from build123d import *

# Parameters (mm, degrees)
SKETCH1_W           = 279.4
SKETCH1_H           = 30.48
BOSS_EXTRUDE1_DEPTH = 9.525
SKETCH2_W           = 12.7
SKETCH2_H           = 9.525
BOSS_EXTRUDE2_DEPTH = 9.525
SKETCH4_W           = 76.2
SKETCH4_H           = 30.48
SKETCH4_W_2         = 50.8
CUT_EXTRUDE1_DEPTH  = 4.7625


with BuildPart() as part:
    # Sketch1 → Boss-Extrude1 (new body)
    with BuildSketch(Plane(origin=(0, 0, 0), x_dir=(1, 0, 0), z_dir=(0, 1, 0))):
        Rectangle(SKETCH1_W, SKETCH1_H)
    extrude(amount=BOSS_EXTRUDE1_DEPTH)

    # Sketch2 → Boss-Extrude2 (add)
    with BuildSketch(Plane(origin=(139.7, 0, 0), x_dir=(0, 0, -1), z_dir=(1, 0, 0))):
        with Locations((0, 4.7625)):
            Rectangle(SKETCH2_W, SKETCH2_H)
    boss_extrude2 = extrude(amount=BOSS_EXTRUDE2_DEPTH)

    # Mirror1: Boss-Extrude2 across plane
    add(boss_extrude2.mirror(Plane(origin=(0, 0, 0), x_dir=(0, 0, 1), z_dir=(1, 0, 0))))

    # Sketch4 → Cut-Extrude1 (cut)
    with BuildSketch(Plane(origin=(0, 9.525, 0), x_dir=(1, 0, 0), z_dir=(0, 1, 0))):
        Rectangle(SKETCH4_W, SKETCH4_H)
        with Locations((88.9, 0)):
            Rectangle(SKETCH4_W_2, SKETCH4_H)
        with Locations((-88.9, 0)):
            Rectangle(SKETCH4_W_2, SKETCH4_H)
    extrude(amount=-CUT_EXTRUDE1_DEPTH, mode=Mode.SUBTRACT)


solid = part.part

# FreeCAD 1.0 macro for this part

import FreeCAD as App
import Part
import Sketcher
from FreeCAD import Vector
Q = App.Units.Quantity

doc = App.newDocument("Part")
params = doc.addObject("Spreadsheet::Sheet", "Params")
for row, (alias, value) in enumerate([
    ("sketch1_width", "11 in"),
    ("sketch1_height", "1.2 in"),
    ("pad1_length", "0.375 in"),
    ("sketch2_height", "0.5 in"),
    ("sketch2_width", "0.375 in"),
    ("pad2_length", "0.375 in"),
    ("sketch3_width", "3 in"),
    ("sketch3_width2", "2 in"),
    ("sketch3_height", "1.2 in"),
    ("pocket1_length", "0.1875 in"),
], start=1):
    params.set(f"A{row}", alias)
    params.set(f"B{row}", "=" + value)
    params.setAlias(f"B{row}", alias)

body = doc.addObject("PartDesign::Body", "Body")

# Sketch on XZ plane
sketch1 = body.newObject("Sketcher::SketchObject", "Sketch")
sketch1.AttachmentSupport = (doc.getObject("XZ_Plane"), [""])
sketch1.MapMode = "FlatFace"
sketch1.addGeometry([
    Part.LineSegment(Vector(-140, -15, 0), Vector(-140, 15, 0)),
    Part.LineSegment(Vector(-140, 15, 0), Vector(140, 15, 0)),
    Part.LineSegment(Vector(140, 15, 0), Vector(140, -15, 0)),
    Part.LineSegment(Vector(140, -15, 0), Vector(-140, -15, 0)),
], False)
sketch1.addConstraint([
    Sketcher.Constraint("Coincident", 0, 2, 1, 1),
    Sketcher.Constraint("Coincident", 1, 2, 2, 1),
    Sketcher.Constraint("Coincident", 2, 2, 3, 1),
    Sketcher.Constraint("Coincident", 3, 2, 0, 1),
    Sketcher.Constraint("Vertical", 0),
    Sketcher.Constraint("Horizontal", 1),
    Sketcher.Constraint("Vertical", 2),
    Sketcher.Constraint("Horizontal", 3),
    Sketcher.Constraint("Symmetric", 0, 2, 2, 2, -1, 1),
    Sketcher.Constraint("DistanceX", 1, 1, 1, 2, Q("11 in")),
    Sketcher.Constraint("DistanceY", 0, 1, 0, 2, Q("1.2 in")),
])
sketch1.setExpression("Constraints[9]", "Params.sketch1_width")
sketch1.setExpression("Constraints[10]", "Params.sketch1_height")
pad1 = body.newObject("PartDesign::Pad", "Pad")
pad1.Profile = sketch1
pad1.setExpression("Length", "Params.pad1_length")
pad1.Reversed = True

# Sketch on YZ plane
sketch2 = body.newObject("Sketcher::SketchObject", "Sketch001")
sketch2.AttachmentSupport = (doc.getObject("YZ_Plane"), [""])
sketch2.MapMode = "FlatFace"
sketch2.AttachmentOffset = App.Placement(Vector(0, 0, 5.5 * 25.4), App.Rotation())
sketch2.addGeometry([
    Part.LineSegment(Vector(10, 6, 0), Vector(0, 6, 0)),
    Part.LineSegment(Vector(0, 6, 0), Vector(0, -6, 0)),
    Part.LineSegment(Vector(0, -6, 0), Vector(10, -6, 0)),
    Part.LineSegment(Vector(10, -6, 0), Vector(10, 6, 0)),
], False)
sketch2.addConstraint([
    Sketcher.Constraint("Coincident", 0, 2, 1, 1),
    Sketcher.Constraint("Coincident", 1, 2, 2, 1),
    Sketcher.Constraint("Coincident", 2, 2, 3, 1),
    Sketcher.Constraint("Coincident", 3, 2, 0, 1),
    Sketcher.Constraint("Horizontal", 0),
    Sketcher.Constraint("Vertical", 1),
    Sketcher.Constraint("Horizontal", 2),
    Sketcher.Constraint("Vertical", 3),
    Sketcher.Constraint("Symmetric", 0, 2, 1, 2, -1, 1),
    Sketcher.Constraint("DistanceY", 1, 2, 1, 1, Q("0.5 in")),
    Sketcher.Constraint("DistanceX", 0, 2, 0, 1, Q("0.375 in")),
])
sketch2.setExpression("Constraints[9]", "Params.sketch2_height")
sketch2.setExpression("Constraints[10]", "Params.sketch2_width")
pad2 = body.newObject("PartDesign::Pad", "Pad001")
pad2.Profile = sketch2
pad2.setExpression("Length", "Params.pad2_length")
doc.recompute()

mirrored = body.newObject("PartDesign::Mirrored", "Mirrored")
mirrored.Originals = [pad2]
mirrored.MirrorPlane = (doc.getObject("YZ_Plane"), [""])
body.Tip = mirrored

# Sketch on XZ plane
sketch3 = body.newObject("Sketcher::SketchObject", "Sketch002")
sketch3.AttachmentSupport = (doc.getObject("XZ_Plane"), [""])
sketch3.MapMode = "FlatFace"
sketch3.AttachmentOffset = App.Placement(Vector(0, 0, -0.375 * 25.4), App.Rotation())
sketch3.addGeometry([
    Part.LineSegment(Vector(-38, -15, 0), Vector(-38, 15, 0)),  # 0
    Part.LineSegment(Vector(-38, 15, 0), Vector(38, 15, 0)),  # 1
    Part.LineSegment(Vector(38, 15, 0), Vector(38, -15, 0)),  # 2
    Part.LineSegment(Vector(38, -15, 0), Vector(-38, -15, 0)),  # 3
    Part.LineSegment(Vector(64, -15, 0), Vector(64, 15, 0)),  # 4
    Part.LineSegment(Vector(64, 15, 0), Vector(114, 15, 0)),  # 5
    Part.LineSegment(Vector(114, 15, 0), Vector(114, -15, 0)),  # 6
    Part.LineSegment(Vector(114, -15, 0), Vector(64, -15, 0)),  # 7
    Part.LineSegment(Vector(-114, -15, 0), Vector(-114, 15, 0)),  # 8
    Part.LineSegment(Vector(-114, 15, 0), Vector(-64, 15, 0)),  # 9
    Part.LineSegment(Vector(-64, 15, 0), Vector(-64, -15, 0)),  # 10
    Part.LineSegment(Vector(-64, -15, 0), Vector(-114, -15, 0)),  # 11
], False)
sketch3.addConstraint([
    Sketcher.Constraint("Coincident", 0, 2, 1, 1),
    Sketcher.Constraint("Coincident", 1, 2, 2, 1),
    Sketcher.Constraint("Coincident", 2, 2, 3, 1),
    Sketcher.Constraint("Coincident", 3, 2, 0, 1),
    Sketcher.Constraint("Coincident", 4, 2, 5, 1),
    Sketcher.Constraint("Coincident", 5, 2, 6, 1),
    Sketcher.Constraint("Coincident", 6, 2, 7, 1),
    Sketcher.Constraint("Coincident", 7, 2, 4, 1),
    Sketcher.Constraint("Coincident", 8, 2, 9, 1),
    Sketcher.Constraint("Coincident", 9, 2, 10, 1),
    Sketcher.Constraint("Coincident", 10, 2, 11, 1),
    Sketcher.Constraint("Coincident", 11, 2, 8, 1),
    Sketcher.Constraint("Vertical", 0),
    Sketcher.Constraint("Horizontal", 1),
    Sketcher.Constraint("Vertical", 2),
    Sketcher.Constraint("Horizontal", 3),
    Sketcher.Constraint("Vertical", 4),
    Sketcher.Constraint("Horizontal", 5),
    Sketcher.Constraint("Vertical", 6),
    Sketcher.Constraint("Horizontal", 7),
    Sketcher.Constraint("Vertical", 8),
    Sketcher.Constraint("Horizontal", 9),
    Sketcher.Constraint("Vertical", 10),
    Sketcher.Constraint("Horizontal", 11),
    Sketcher.Constraint("Symmetric", 0, 2, 2, 2, -1, 1),
    Sketcher.Constraint("Symmetric", 6, 2, 8, 2, -1, 1),
    Sketcher.Constraint("Symmetric", 4, 2, 10, 2, -1, 1),
    Sketcher.Constraint("Horizontal", 1, 2, 4, 2),
    Sketcher.Constraint("Horizontal", 3, 2, 6, 2),
    Sketcher.Constraint("DistanceX", 1, 1, 1, 2, Q("3 in")),
    Sketcher.Constraint("DistanceX", 5, 1, 5, 2, Q("2 in")),
    Sketcher.Constraint("DistanceY", 0, 1, 0, 2, Q("1.2 in")),
    Sketcher.Constraint("DistanceX", 1, 2, 4, 2, Q("1 in")),
])
sketch3.setExpression("Constraints[29]", "Params.sketch3_width")
sketch3.setExpression("Constraints[30]", "Params.sketch3_width2")
sketch3.setExpression("Constraints[31]", "Params.sketch3_height")
pocket1 = body.newObject("PartDesign::Pocket", "Pocket")
pocket1.Profile = sketch3
pocket1.setExpression("Length", "Params.pocket1_length")
pocket1.Reversed = True

doc.recompute()
